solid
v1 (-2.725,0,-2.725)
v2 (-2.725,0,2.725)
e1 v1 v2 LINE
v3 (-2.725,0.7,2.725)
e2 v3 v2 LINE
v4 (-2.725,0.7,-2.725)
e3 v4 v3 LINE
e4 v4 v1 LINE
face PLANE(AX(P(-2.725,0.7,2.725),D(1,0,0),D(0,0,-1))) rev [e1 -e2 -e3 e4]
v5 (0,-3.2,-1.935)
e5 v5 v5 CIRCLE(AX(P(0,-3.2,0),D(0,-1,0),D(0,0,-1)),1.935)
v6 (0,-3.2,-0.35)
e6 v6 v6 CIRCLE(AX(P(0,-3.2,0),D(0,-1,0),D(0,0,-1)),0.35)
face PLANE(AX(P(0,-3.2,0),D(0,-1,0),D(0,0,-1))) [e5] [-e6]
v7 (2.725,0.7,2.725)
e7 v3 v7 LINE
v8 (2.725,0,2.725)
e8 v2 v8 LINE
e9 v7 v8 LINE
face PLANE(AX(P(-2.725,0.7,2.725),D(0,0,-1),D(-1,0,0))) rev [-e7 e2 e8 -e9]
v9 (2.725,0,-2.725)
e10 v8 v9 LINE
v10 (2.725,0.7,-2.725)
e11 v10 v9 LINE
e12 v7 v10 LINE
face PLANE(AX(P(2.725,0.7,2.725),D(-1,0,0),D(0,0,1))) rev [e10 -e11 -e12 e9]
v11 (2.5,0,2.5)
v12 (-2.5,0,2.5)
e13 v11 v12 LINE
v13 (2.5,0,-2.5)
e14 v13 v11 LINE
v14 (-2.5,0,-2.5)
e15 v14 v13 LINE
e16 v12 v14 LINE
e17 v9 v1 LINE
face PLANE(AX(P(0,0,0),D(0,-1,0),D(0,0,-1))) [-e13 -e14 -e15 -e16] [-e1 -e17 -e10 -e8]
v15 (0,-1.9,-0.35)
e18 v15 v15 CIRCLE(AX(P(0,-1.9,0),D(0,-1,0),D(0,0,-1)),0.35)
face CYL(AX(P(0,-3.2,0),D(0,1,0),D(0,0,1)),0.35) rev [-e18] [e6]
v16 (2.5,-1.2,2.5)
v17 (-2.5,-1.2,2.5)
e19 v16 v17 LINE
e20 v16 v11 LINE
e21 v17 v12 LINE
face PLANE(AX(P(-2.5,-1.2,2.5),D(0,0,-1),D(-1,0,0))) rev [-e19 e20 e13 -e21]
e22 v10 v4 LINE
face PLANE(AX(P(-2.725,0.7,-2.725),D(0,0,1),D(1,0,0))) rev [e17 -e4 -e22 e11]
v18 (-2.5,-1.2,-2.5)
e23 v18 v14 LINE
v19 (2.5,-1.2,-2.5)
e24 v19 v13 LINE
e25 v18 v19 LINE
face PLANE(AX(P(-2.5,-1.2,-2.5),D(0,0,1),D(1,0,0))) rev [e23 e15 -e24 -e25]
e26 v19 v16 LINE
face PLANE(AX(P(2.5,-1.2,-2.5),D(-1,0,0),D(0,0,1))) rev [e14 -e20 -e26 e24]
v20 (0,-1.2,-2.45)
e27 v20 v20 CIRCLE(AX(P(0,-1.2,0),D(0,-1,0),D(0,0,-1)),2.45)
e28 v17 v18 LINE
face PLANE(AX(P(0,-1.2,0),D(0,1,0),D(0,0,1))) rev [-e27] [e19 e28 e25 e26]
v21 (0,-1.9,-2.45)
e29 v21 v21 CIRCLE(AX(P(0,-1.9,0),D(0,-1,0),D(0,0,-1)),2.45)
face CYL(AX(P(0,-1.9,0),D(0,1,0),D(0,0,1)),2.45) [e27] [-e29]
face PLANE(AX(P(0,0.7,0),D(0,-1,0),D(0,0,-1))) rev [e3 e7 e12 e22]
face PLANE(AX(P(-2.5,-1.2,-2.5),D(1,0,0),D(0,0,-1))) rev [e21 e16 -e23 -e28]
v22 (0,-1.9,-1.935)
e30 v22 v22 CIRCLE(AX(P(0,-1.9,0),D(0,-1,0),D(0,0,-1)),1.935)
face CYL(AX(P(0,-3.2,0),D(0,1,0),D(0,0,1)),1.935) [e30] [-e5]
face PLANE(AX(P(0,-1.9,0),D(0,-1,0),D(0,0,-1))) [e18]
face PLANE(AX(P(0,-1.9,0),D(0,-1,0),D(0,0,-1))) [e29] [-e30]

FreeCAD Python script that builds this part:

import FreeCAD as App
import Part
import Sketcher


def add_polygon(sketch, points):
    """Adds a closed chain of lines whose ends are joined by coincident constraints."""
    first, n = sketch.GeometryCount, len(points)
    for a, b in zip(points, points[1:] + points[:1]):
        sketch.addGeometry(Part.LineSegment(App.Vector(*a, 0), App.Vector(*b, 0)), False)
    for i in range(n):
        sketch.addConstraint(Sketcher.Constraint("Coincident", first + i, 2, first + (i + 1) % n, 1))

doc = App.newDocument("Part")
body = doc.addObject("PartDesign::Body", "Body")

# Sketch on XZ plane
sketch1 = body.newObject("Sketcher::SketchObject", "Sketch")
sketch1.AttachmentSupport = (doc.getObject("XZ_Plane"), [""])
sketch1.MapMode = "FlatFace"
add_polygon(sketch1, [(-3, -3), (-3, 3), (3, 3), (3, -3)])  # lines 0-3
sketch1.addConstraint(Sketcher.Constraint("Vertical", 0))
sketch1.addConstraint(Sketcher.Constraint("Horizontal", 1))
sketch1.addConstraint(Sketcher.Constraint("Vertical", 2))
sketch1.addConstraint(Sketcher.Constraint("Horizontal", 3))
sketch1.addConstraint(Sketcher.Constraint("Symmetric", 0, 2, 2, 2, -1, 1))
sketch1.addConstraint(Sketcher.Constraint("Equal", 3, 0))
sketch1.addConstraint(Sketcher.Constraint("DistanceX", 1, 1, 1, 2, 5.45))
pad1 = body.newObject("PartDesign::Pad", "Pad")
pad1.Profile = sketch1
pad1.Length = 0.7
pad1.Reversed = True

# Sketch on XZ plane
sketch2 = body.newObject("Sketcher::SketchObject", "Sketch001")
sketch2.AttachmentSupport = (doc.getObject("XZ_Plane"), [""])
sketch2.MapMode = "FlatFace"
add_polygon(sketch2, [(-2, 2), (-2, -2), (2, -2), (2, 2)])  # lines 0-3
sketch2.addConstraint(Sketcher.Constraint("Vertical", 0))
sketch2.addConstraint(Sketcher.Constraint("Horizontal", 1))
sketch2.addConstraint(Sketcher.Constraint("Vertical", 2))
sketch2.addConstraint(Sketcher.Constraint("Horizontal", 3))
sketch2.addConstraint(Sketcher.Constraint("Symmetric", 0, 2, 2, 2, -1, 1))
sketch2.addConstraint(Sketcher.Constraint("Equal", 3, 0))
sketch2.addConstraint(Sketcher.Constraint("DistanceX", 1, 1, 1, 2, 5.0))
pad2 = body.newObject("PartDesign::Pad", "Pad001")
pad2.Profile = sketch2
pad2.Length = 1.2

# Sketch on XZ plane
sketch3 = body.newObject("Sketcher::SketchObject", "Sketch002")
sketch3.AttachmentSupport = (doc.getObject("XZ_Plane"), [""])
sketch3.MapMode = "FlatFace"
sketch3.AttachmentOffset = App.Placement(App.Vector(0, 0, 1.2), App.Rotation())
sketch3.addGeometry(Part.Circle(App.Vector(0, 0, 0), App.Vector(0, 0, 1), 2.5), False)
sketch3.addConstraint(Sketcher.Constraint("Coincident", 0, 3, -1, 1))
sketch3.addConstraint(Sketcher.Constraint("Diameter", 0, 4.9))
pad3 = body.newObject("PartDesign::Pad", "Pad002")
pad3.Profile = sketch3
pad3.Length = 0.7

# Sketch on XZ plane
sketch4 = body.newObject("Sketcher::SketchObject", "Sketch003")
sketch4.AttachmentSupport = (doc.getObject("XZ_Plane"), [""])
sketch4.MapMode = "FlatFace"
sketch4.AttachmentOffset = App.Placement(App.Vector(0, 0, 1.9), App.Rotation())
sketch4.addGeometry(Part.Circle(App.Vector(0, 0, 0), App.Vector(0, 0, 1), 1.94), False)
sketch4.addGeometry(Part.Circle(App.Vector(0, 0, 0), App.Vector(0, 0, 1), 0.35), False)
sketch4.addConstraint(Sketcher.Constraint("Coincident", 0, 3, -1, 1))
sketch4.addConstraint(Sketcher.Constraint("Coincident", 1, 3, -1, 1))
sketch4.addConstraint(Sketcher.Constraint("Diameter", 1, 0.7))
sketch4.addConstraint(Sketcher.Constraint("Diameter", 0, 3.87))
pad4 = body.newObject("PartDesign::Pad", "Pad003")
pad4.Profile = sketch4
pad4.Length = 1.3

doc.recompute()
